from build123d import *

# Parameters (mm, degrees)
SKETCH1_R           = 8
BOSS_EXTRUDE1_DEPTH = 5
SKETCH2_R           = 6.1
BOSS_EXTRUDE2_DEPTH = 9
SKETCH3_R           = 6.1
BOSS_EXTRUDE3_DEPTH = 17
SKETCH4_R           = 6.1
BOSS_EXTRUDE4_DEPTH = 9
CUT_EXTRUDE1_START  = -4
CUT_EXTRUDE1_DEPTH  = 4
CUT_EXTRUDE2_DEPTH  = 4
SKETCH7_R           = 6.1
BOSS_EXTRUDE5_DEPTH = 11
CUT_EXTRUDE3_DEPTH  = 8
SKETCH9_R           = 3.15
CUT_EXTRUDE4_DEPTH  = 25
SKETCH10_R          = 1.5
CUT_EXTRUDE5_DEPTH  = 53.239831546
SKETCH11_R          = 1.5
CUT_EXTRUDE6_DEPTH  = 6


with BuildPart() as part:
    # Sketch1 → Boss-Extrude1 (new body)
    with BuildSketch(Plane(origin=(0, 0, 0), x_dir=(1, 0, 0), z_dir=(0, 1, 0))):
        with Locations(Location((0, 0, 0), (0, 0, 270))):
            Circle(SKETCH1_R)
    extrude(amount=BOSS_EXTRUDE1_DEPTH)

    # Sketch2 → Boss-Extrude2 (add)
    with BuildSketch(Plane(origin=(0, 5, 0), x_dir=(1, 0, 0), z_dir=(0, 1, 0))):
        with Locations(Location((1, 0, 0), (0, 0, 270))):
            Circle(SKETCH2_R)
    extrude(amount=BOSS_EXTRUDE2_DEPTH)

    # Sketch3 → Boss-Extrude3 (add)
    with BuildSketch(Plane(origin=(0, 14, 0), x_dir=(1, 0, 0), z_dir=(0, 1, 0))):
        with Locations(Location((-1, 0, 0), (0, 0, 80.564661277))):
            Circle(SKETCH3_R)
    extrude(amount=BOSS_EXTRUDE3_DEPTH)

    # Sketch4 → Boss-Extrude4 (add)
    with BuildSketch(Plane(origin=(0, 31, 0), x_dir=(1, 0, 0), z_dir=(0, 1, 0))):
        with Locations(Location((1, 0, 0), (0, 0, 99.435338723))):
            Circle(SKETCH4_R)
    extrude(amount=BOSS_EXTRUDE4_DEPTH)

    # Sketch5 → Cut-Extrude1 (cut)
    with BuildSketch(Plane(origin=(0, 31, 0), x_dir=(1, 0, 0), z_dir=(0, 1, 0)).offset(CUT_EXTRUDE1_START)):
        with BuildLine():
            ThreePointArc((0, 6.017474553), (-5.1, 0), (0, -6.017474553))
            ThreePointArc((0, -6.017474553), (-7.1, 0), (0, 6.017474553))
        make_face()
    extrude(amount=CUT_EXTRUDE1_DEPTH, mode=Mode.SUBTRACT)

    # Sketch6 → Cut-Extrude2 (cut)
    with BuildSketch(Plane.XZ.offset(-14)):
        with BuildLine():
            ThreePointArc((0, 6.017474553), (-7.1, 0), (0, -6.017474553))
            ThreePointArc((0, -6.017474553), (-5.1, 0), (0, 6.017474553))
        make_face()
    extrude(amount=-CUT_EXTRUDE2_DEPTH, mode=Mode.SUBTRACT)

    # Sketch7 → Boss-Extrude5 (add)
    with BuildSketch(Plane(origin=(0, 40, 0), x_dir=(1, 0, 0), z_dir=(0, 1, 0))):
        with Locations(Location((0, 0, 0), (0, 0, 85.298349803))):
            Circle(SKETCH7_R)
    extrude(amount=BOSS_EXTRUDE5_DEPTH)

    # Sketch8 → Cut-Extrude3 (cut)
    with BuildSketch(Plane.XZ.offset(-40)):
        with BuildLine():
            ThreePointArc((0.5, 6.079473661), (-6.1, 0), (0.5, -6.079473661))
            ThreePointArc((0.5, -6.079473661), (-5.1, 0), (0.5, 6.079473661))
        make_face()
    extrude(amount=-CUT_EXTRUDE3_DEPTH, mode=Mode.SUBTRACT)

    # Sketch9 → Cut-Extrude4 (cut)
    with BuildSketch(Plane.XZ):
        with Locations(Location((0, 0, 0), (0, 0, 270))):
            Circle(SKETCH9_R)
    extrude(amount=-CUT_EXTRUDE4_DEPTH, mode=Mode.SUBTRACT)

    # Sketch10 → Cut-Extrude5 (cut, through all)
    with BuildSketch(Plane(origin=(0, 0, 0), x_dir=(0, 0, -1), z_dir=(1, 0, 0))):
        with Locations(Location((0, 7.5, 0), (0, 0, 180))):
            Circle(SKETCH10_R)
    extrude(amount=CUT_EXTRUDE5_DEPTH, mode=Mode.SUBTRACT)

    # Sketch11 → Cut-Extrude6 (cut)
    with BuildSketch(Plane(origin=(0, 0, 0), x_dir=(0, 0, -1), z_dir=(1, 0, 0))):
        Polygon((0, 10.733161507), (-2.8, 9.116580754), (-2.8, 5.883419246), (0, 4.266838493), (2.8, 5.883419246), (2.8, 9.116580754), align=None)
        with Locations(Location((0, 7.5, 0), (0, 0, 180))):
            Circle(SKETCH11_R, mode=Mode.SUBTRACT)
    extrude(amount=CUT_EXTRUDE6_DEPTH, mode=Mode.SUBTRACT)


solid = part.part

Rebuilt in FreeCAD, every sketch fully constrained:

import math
import FreeCAD as App
import Part
import Sketcher
Q = App.Units.Quantity


def add_polygon(sketch, points):
    """Adds a closed chain of lines whose ends are joined by coincident constraints."""
    first, n = sketch.GeometryCount, len(points)
    for a, b in zip(points, points[1:] + points[:1]):
        sketch.addGeometry(Part.LineSegment(App.Vector(*a, 0), App.Vector(*b, 0)), False)
    for i in range(n):
        sketch.addConstraint(Sketcher.Constraint("Coincident", first + i, 2, first + (i + 1) % n, 1))

doc = App.newDocument("Part")
body = doc.addObject("PartDesign::Body", "Body")

# Sketch on XZ plane
sketch1 = doc.addObject("Sketcher::SketchObject", "Sketch")
body.addObject(sketch1)
sketch1.AttachmentSupport = (doc.XZ_Plane, [""])
sketch1.MapMode = "FlatFace"
sketch1.addGeometry(Part.Circle(App.Vector(0, 0, 0), App.Vector(0, 0, 1), 8), False)
sketch1.addConstraint(Sketcher.Constraint("Coincident", 0, 3, -1, 1))
sketch1.addConstraint(Sketcher.Constraint("Diameter", 0, Q("16 mm")))
pad1 = doc.addObject("PartDesign::Pad", "Pad")
body.addObject(pad1)
pad1.Profile = sketch1
pad1.Length = 5
pad1.Reversed = True

# Sketch on XZ plane
sketch2 = doc.addObject("Sketcher::SketchObject", "Sketch001")
body.addObject(sketch2)
sketch2.AttachmentSupport = (doc.XZ_Plane, [""])
sketch2.MapMode = "FlatFace"
sketch2.AttachmentOffset = App.Placement(App.Vector(0, 0, -5), App.Rotation())
sketch2.addGeometry(Part.Circle(App.Vector(1, 0, 0), App.Vector(0, 0, 1), 6.1), False)
sketch2.addConstraint(Sketcher.Constraint("PointOnObject", 0, 3, -1))
sketch2.addConstraint(Sketcher.Constraint("Diameter", 0, Q("12.2 mm")))
sketch2.addConstraint(Sketcher.Constraint("DistanceX", -1, 1, 0, 3, Q("1 mm")))
pad2 = doc.addObject("PartDesign::Pad", "Pad001")
body.addObject(pad2)
pad2.Profile = sketch2
pad2.Length = 9
pad2.Reversed = True

# Sketch on XZ plane
sketch3 = doc.addObject("Sketcher::SketchObject", "Sketch002")
body.addObject(sketch3)
sketch3.AttachmentSupport = (doc.XZ_Plane, [""])
sketch3.MapMode = "FlatFace"
sketch3.AttachmentOffset = App.Placement(App.Vector(0, 0, -14), App.Rotation())
sketch3.addGeometry(Part.Circle(App.Vector(-1, 0, 0), App.Vector(0, 0, 1), 6.1), False)
sketch3.addConstraint(Sketcher.Constraint("PointOnObject", 0, 3, -1))
sketch3.addConstraint(Sketcher.Constraint("Diameter", 0, Q("12.2 mm")))
sketch3.addConstraint(Sketcher.Constraint("DistanceX", 0, 3, -1, 1, Q("1 mm")))
pad3 = doc.addObject("PartDesign::Pad", "Pad002")
body.addObject(pad3)
pad3.Profile = sketch3
pad3.Length = 17
pad3.Reversed = True

# Sketch on XZ plane
sketch4 = doc.addObject("Sketcher::SketchObject", "Sketch003")
body.addObject(sketch4)
sketch4.AttachmentSupport = (doc.XZ_Plane, [""])
sketch4.MapMode = "FlatFace"
sketch4.AttachmentOffset = App.Placement(App.Vector(0, 0, -31), App.Rotation())
sketch4.addGeometry(Part.Circle(App.Vector(1, 0, 0), App.Vector(0, 0, 1), 6.1), False)
sketch4.addConstraint(Sketcher.Constraint("PointOnObject", 0, 3, -1))
sketch4.addConstraint(Sketcher.Constraint("Diameter", 0, Q("12.2 mm")))
sketch4.addConstraint(Sketcher.Constraint("DistanceX", -1, 1, 0, 3, Q("1 mm")))
pad4 = doc.addObject("PartDesign::Pad", "Pad003")
body.addObject(pad4)
pad4.Profile = sketch4
pad4.Length = 9
pad4.Reversed = True

# Sketch on XZ plane
sketch5 = doc.addObject("Sketcher::SketchObject", "Sketch004")
body.addObject(sketch5)
sketch5.AttachmentSupport = (doc.XZ_Plane, [""])
sketch5.MapMode = "FlatFace"
sketch5.AttachmentOffset = App.Placement(App.Vector(0, 0, -27), App.Rotation())
sketch5.addGeometry(Part.ArcOfCircle(Part.Circle(App.Vector(1, 0, 0), App.Vector(0, 0, 1), 6.1), math.radians(99.435339), math.radians(260.564661)), False)
sketch5.addGeometry(Part.ArcOfCircle(Part.Circle(App.Vector(-1, 0, 0), App.Vector(0, 0, 1), 6.1), math.radians(80.564661), math.radians(279.435339)), False)
sketch5.addConstraint(Sketcher.Constraint("Coincident", 0, 1, 1, 1))
sketch5.addConstraint(Sketcher.Constraint("Coincident", 1, 2, 0, 2))
sketch5.addConstraint(Sketcher.Constraint("Equal", 0, 1))
sketch5.addConstraint(Sketcher.Constraint("Symmetric", 0, 3, 1, 3, -1, 1))
sketch5.addConstraint(Sketcher.Constraint("PointOnObject", 0, 3, -1))
sketch5.addConstraint(Sketcher.Constraint("Radius", 0, Q("6.1 mm")))
sketch5.addConstraint(Sketcher.Constraint("DistanceX", -1, 1, 0, 3, Q("1 mm")))
pocket1 = doc.addObject("PartDesign::Pocket", "Pocket")
body.addObject(pocket1)
pocket1.Profile = sketch5
pocket1.Length = 4

# Sketch on XZ plane
sketch6 = doc.addObject("Sketcher::SketchObject", "Sketch005")
body.addObject(sketch6)
sketch6.AttachmentSupport = (doc.XZ_Plane, [""])
sketch6.MapMode = "FlatFace"
sketch6.AttachmentOffset = App.Placement(App.Vector(0, 0, -14), App.Rotation())
sketch6.addGeometry(Part.ArcOfCircle(Part.Circle(App.Vector(-1, 0, 0), App.Vector(0, 0, 1), 6.1), math.radians(80.564661), math.radians(279.435339)), False)
sketch6.addGeometry(Part.ArcOfCircle(Part.Circle(App.Vector(1, 0, 0), App.Vector(0, 0, 1), 6.1), math.radians(99.435339), math.radians(260.564661)), False)
sketch6.addConstraint(Sketcher.Constraint("Coincident", 0, 1, 1, 1))
sketch6.addConstraint(Sketcher.Constraint("Coincident", 1, 2, 0, 2))
sketch6.addConstraint(Sketcher.Constraint("Equal", 0, 1))
sketch6.addConstraint(Sketcher.Constraint("Symmetric", 0, 3, 1, 3, -1, 1))
sketch6.addConstraint(Sketcher.Constraint("PointOnObject", 0, 3, -1))
sketch6.addConstraint(Sketcher.Constraint("Radius", 0, Q("6.1 mm")))
sketch6.addConstraint(Sketcher.Constraint("DistanceX", 0, 3, -1, 1, Q("1 mm")))
pocket2 = doc.addObject("PartDesign::Pocket", "Pocket001")
body.addObject(pocket2)
pocket2.Profile = sketch6
pocket2.Length = 4

# Sketch on XZ plane
sketch7 = doc.addObject("Sketcher::SketchObject", "Sketch006")
body.addObject(sketch7)
sketch7.AttachmentSupport = (doc.XZ_Plane, [""])
sketch7.MapMode = "FlatFace"
sketch7.AttachmentOffset = App.Placement(App.Vector(0, 0, -40), App.Rotation())
sketch7.addGeometry(Part.Circle(App.Vector(0, 0, 0), App.Vector(0, 0, 1), 6.1), False)
sketch7.addConstraint(Sketcher.Constraint("Coincident", 0, 3, -1, 1))
sketch7.addConstraint(Sketcher.Constraint("Diameter", 0, Q("12.2 mm")))
pad5 = doc.addObject("PartDesign::Pad", "Pad004")
body.addObject(pad5)
pad5.Profile = sketch7
pad5.Length = 11
pad5.Reversed = True

# Sketch on XZ plane
sketch8 = doc.addObject("Sketcher::SketchObject", "Sketch007")
body.addObject(sketch8)
sketch8.AttachmentSupport = (doc.XZ_Plane, [""])
sketch8.MapMode = "FlatFace"
sketch8.AttachmentOffset = App.Placement(App.Vector(0, 0, -40), App.Rotation())
sketch8.addGeometry(Part.ArcOfCircle(Part.Circle(App.Vector(0, 0, 0), App.Vector(0, 0, 1), 6.1), math.radians(85.29835), math.radians(274.70165)), False)
sketch8.addGeometry(Part.ArcOfCircle(Part.Circle(App.Vector(1, 0, 0), App.Vector(0, 0, 1), 6.1), math.radians(94.70165), math.radians(265.29835)), False)
sketch8.addConstraint(Sketcher.Constraint("Coincident", 0, 1, 1, 1))
sketch8.addConstraint(Sketcher.Constraint("Coincident", 1, 2, 0, 2))
sketch8.addConstraint(Sketcher.Constraint("Coincident", 0, 3, -1, 1))
sketch8.addConstraint(Sketcher.Constraint("Equal", 0, 1))
sketch8.addConstraint(Sketcher.Constraint("PointOnObject", 1, 3, -1))
sketch8.addConstraint(Sketcher.Constraint("Radius", 0, Q("6.1 mm")))
sketch8.addConstraint(Sketcher.Constraint("DistanceX", -1, 1, 1, 3, Q("1 mm")))
pocket3 = doc.addObject("PartDesign::Pocket", "Pocket002")
body.addObject(pocket3)
pocket3.Profile = sketch8
pocket3.Length = 8

# Sketch on XZ plane
sketch9 = doc.addObject("Sketcher::SketchObject", "Sketch008")
body.addObject(sketch9)
sketch9.AttachmentSupport = (doc.XZ_Plane, [""])
sketch9.MapMode = "FlatFace"
sketch9.addGeometry(Part.Circle(App.Vector(0, 0, 0), App.Vector(0, 0, 1), 3.15), False)
sketch9.addConstraint(Sketcher.Constraint("Coincident", 0, 3, -1, 1))
sketch9.addConstraint(Sketcher.Constraint("Diameter", 0, Q("6.3 mm")))
pocket4 = doc.addObject("PartDesign::Pocket", "Pocket003")
body.addObject(pocket4)
pocket4.Profile = sketch9
pocket4.Length = 25

# Sketch on YZ plane
sketch10 = doc.addObject("Sketcher::SketchObject", "Sketch009")
body.addObject(sketch10)
sketch10.AttachmentSupport = (doc.YZ_Plane, [""])
sketch10.MapMode = "FlatFace"
sketch10.addGeometry(Part.Circle(App.Vector(7.5, 0, 0), App.Vector(0, 0, 1), 1.5), False)
sketch10.addConstraint(Sketcher.Constraint("PointOnObject", 0, 3, -1))
sketch10.addConstraint(Sketcher.Constraint("Diameter", 0, Q("3 mm")))
sketch10.addConstraint(Sketcher.Constraint("DistanceX", -1, 1, 0, 3, Q("7.5 mm")))
pocket5 = doc.addObject("PartDesign::Pocket", "Pocket004")
body.addObject(pocket5)
pocket5.Profile = sketch10
pocket5.Type = "ThroughAll"
pocket5.Reversed = True

# Sketch on YZ plane
sketch11 = doc.addObject("Sketcher::SketchObject", "Sketch010")
body.addObject(sketch11)
sketch11.AttachmentSupport = (doc.YZ_Plane, [""])
sketch11.MapMode = "FlatFace"
add_polygon(sketch11, [(10.733162, 0), (9.116581, 2.8), (5.883419, 2.8), (4.266838, 0), (5.883419, -2.8), (9.116581, -2.8)])  # lines 0-5
sketch11.addGeometry(Part.Circle(App.Vector(7.5, 0, 0), App.Vector(0, 0, 1), 1.5), False)  # 6
sketch11.addConstraint(Sketcher.Constraint("Horizontal", 1))
sketch11.addConstraint(Sketcher.Constraint("Horizontal", 4))
sketch11.addConstraint(Sketcher.Constraint("Symmetric", 1, 2, 3, 2, -1))
sketch11.addConstraint(Sketcher.Constraint("PointOnObject", 6, 3, -1))
sketch11.addConstraint(Sketcher.Constraint("PointOnObject", 2, 2, -1))
sketch11.addConstraint(Sketcher.Constraint("PointOnObject", 5, 2, -1))
sketch11.addConstraint(Sketcher.Constraint("Parallel", 0, 3))
sketch11.addConstraint(Sketcher.Constraint("Parallel", 2, 5))
sketch11.addConstraint(Sketcher.Constraint("Diameter", 6, Q("3 mm")))
sketch11.addConstraint(Sketcher.Constraint("Angle", 0, Q("120 deg")))
sketch11.addConstraint(Sketcher.Constraint("DistanceX", -1, 1, 6, 3, Q("7.5 mm")))
sketch11.addConstraint(Sketcher.Constraint("DistanceY", -1, 1, 0, 2, Q("2.8 mm")))
sketch11.addConstraint(Sketcher.Constraint("DistanceX", 1, 2, 1, 1, Q("3.233162 mm")))
sketch11.addConstraint(Sketcher.Constraint("DistanceX", -1, 1, 0, 2, Q("9.116581 mm")))
pocket6 = doc.addObject("PartDesign::Pocket", "Pocket005")
body.addObject(pocket6)
pocket6.Profile = sketch11
pocket6.Length = 6
pocket6.Reversed = True

doc.recompute()
